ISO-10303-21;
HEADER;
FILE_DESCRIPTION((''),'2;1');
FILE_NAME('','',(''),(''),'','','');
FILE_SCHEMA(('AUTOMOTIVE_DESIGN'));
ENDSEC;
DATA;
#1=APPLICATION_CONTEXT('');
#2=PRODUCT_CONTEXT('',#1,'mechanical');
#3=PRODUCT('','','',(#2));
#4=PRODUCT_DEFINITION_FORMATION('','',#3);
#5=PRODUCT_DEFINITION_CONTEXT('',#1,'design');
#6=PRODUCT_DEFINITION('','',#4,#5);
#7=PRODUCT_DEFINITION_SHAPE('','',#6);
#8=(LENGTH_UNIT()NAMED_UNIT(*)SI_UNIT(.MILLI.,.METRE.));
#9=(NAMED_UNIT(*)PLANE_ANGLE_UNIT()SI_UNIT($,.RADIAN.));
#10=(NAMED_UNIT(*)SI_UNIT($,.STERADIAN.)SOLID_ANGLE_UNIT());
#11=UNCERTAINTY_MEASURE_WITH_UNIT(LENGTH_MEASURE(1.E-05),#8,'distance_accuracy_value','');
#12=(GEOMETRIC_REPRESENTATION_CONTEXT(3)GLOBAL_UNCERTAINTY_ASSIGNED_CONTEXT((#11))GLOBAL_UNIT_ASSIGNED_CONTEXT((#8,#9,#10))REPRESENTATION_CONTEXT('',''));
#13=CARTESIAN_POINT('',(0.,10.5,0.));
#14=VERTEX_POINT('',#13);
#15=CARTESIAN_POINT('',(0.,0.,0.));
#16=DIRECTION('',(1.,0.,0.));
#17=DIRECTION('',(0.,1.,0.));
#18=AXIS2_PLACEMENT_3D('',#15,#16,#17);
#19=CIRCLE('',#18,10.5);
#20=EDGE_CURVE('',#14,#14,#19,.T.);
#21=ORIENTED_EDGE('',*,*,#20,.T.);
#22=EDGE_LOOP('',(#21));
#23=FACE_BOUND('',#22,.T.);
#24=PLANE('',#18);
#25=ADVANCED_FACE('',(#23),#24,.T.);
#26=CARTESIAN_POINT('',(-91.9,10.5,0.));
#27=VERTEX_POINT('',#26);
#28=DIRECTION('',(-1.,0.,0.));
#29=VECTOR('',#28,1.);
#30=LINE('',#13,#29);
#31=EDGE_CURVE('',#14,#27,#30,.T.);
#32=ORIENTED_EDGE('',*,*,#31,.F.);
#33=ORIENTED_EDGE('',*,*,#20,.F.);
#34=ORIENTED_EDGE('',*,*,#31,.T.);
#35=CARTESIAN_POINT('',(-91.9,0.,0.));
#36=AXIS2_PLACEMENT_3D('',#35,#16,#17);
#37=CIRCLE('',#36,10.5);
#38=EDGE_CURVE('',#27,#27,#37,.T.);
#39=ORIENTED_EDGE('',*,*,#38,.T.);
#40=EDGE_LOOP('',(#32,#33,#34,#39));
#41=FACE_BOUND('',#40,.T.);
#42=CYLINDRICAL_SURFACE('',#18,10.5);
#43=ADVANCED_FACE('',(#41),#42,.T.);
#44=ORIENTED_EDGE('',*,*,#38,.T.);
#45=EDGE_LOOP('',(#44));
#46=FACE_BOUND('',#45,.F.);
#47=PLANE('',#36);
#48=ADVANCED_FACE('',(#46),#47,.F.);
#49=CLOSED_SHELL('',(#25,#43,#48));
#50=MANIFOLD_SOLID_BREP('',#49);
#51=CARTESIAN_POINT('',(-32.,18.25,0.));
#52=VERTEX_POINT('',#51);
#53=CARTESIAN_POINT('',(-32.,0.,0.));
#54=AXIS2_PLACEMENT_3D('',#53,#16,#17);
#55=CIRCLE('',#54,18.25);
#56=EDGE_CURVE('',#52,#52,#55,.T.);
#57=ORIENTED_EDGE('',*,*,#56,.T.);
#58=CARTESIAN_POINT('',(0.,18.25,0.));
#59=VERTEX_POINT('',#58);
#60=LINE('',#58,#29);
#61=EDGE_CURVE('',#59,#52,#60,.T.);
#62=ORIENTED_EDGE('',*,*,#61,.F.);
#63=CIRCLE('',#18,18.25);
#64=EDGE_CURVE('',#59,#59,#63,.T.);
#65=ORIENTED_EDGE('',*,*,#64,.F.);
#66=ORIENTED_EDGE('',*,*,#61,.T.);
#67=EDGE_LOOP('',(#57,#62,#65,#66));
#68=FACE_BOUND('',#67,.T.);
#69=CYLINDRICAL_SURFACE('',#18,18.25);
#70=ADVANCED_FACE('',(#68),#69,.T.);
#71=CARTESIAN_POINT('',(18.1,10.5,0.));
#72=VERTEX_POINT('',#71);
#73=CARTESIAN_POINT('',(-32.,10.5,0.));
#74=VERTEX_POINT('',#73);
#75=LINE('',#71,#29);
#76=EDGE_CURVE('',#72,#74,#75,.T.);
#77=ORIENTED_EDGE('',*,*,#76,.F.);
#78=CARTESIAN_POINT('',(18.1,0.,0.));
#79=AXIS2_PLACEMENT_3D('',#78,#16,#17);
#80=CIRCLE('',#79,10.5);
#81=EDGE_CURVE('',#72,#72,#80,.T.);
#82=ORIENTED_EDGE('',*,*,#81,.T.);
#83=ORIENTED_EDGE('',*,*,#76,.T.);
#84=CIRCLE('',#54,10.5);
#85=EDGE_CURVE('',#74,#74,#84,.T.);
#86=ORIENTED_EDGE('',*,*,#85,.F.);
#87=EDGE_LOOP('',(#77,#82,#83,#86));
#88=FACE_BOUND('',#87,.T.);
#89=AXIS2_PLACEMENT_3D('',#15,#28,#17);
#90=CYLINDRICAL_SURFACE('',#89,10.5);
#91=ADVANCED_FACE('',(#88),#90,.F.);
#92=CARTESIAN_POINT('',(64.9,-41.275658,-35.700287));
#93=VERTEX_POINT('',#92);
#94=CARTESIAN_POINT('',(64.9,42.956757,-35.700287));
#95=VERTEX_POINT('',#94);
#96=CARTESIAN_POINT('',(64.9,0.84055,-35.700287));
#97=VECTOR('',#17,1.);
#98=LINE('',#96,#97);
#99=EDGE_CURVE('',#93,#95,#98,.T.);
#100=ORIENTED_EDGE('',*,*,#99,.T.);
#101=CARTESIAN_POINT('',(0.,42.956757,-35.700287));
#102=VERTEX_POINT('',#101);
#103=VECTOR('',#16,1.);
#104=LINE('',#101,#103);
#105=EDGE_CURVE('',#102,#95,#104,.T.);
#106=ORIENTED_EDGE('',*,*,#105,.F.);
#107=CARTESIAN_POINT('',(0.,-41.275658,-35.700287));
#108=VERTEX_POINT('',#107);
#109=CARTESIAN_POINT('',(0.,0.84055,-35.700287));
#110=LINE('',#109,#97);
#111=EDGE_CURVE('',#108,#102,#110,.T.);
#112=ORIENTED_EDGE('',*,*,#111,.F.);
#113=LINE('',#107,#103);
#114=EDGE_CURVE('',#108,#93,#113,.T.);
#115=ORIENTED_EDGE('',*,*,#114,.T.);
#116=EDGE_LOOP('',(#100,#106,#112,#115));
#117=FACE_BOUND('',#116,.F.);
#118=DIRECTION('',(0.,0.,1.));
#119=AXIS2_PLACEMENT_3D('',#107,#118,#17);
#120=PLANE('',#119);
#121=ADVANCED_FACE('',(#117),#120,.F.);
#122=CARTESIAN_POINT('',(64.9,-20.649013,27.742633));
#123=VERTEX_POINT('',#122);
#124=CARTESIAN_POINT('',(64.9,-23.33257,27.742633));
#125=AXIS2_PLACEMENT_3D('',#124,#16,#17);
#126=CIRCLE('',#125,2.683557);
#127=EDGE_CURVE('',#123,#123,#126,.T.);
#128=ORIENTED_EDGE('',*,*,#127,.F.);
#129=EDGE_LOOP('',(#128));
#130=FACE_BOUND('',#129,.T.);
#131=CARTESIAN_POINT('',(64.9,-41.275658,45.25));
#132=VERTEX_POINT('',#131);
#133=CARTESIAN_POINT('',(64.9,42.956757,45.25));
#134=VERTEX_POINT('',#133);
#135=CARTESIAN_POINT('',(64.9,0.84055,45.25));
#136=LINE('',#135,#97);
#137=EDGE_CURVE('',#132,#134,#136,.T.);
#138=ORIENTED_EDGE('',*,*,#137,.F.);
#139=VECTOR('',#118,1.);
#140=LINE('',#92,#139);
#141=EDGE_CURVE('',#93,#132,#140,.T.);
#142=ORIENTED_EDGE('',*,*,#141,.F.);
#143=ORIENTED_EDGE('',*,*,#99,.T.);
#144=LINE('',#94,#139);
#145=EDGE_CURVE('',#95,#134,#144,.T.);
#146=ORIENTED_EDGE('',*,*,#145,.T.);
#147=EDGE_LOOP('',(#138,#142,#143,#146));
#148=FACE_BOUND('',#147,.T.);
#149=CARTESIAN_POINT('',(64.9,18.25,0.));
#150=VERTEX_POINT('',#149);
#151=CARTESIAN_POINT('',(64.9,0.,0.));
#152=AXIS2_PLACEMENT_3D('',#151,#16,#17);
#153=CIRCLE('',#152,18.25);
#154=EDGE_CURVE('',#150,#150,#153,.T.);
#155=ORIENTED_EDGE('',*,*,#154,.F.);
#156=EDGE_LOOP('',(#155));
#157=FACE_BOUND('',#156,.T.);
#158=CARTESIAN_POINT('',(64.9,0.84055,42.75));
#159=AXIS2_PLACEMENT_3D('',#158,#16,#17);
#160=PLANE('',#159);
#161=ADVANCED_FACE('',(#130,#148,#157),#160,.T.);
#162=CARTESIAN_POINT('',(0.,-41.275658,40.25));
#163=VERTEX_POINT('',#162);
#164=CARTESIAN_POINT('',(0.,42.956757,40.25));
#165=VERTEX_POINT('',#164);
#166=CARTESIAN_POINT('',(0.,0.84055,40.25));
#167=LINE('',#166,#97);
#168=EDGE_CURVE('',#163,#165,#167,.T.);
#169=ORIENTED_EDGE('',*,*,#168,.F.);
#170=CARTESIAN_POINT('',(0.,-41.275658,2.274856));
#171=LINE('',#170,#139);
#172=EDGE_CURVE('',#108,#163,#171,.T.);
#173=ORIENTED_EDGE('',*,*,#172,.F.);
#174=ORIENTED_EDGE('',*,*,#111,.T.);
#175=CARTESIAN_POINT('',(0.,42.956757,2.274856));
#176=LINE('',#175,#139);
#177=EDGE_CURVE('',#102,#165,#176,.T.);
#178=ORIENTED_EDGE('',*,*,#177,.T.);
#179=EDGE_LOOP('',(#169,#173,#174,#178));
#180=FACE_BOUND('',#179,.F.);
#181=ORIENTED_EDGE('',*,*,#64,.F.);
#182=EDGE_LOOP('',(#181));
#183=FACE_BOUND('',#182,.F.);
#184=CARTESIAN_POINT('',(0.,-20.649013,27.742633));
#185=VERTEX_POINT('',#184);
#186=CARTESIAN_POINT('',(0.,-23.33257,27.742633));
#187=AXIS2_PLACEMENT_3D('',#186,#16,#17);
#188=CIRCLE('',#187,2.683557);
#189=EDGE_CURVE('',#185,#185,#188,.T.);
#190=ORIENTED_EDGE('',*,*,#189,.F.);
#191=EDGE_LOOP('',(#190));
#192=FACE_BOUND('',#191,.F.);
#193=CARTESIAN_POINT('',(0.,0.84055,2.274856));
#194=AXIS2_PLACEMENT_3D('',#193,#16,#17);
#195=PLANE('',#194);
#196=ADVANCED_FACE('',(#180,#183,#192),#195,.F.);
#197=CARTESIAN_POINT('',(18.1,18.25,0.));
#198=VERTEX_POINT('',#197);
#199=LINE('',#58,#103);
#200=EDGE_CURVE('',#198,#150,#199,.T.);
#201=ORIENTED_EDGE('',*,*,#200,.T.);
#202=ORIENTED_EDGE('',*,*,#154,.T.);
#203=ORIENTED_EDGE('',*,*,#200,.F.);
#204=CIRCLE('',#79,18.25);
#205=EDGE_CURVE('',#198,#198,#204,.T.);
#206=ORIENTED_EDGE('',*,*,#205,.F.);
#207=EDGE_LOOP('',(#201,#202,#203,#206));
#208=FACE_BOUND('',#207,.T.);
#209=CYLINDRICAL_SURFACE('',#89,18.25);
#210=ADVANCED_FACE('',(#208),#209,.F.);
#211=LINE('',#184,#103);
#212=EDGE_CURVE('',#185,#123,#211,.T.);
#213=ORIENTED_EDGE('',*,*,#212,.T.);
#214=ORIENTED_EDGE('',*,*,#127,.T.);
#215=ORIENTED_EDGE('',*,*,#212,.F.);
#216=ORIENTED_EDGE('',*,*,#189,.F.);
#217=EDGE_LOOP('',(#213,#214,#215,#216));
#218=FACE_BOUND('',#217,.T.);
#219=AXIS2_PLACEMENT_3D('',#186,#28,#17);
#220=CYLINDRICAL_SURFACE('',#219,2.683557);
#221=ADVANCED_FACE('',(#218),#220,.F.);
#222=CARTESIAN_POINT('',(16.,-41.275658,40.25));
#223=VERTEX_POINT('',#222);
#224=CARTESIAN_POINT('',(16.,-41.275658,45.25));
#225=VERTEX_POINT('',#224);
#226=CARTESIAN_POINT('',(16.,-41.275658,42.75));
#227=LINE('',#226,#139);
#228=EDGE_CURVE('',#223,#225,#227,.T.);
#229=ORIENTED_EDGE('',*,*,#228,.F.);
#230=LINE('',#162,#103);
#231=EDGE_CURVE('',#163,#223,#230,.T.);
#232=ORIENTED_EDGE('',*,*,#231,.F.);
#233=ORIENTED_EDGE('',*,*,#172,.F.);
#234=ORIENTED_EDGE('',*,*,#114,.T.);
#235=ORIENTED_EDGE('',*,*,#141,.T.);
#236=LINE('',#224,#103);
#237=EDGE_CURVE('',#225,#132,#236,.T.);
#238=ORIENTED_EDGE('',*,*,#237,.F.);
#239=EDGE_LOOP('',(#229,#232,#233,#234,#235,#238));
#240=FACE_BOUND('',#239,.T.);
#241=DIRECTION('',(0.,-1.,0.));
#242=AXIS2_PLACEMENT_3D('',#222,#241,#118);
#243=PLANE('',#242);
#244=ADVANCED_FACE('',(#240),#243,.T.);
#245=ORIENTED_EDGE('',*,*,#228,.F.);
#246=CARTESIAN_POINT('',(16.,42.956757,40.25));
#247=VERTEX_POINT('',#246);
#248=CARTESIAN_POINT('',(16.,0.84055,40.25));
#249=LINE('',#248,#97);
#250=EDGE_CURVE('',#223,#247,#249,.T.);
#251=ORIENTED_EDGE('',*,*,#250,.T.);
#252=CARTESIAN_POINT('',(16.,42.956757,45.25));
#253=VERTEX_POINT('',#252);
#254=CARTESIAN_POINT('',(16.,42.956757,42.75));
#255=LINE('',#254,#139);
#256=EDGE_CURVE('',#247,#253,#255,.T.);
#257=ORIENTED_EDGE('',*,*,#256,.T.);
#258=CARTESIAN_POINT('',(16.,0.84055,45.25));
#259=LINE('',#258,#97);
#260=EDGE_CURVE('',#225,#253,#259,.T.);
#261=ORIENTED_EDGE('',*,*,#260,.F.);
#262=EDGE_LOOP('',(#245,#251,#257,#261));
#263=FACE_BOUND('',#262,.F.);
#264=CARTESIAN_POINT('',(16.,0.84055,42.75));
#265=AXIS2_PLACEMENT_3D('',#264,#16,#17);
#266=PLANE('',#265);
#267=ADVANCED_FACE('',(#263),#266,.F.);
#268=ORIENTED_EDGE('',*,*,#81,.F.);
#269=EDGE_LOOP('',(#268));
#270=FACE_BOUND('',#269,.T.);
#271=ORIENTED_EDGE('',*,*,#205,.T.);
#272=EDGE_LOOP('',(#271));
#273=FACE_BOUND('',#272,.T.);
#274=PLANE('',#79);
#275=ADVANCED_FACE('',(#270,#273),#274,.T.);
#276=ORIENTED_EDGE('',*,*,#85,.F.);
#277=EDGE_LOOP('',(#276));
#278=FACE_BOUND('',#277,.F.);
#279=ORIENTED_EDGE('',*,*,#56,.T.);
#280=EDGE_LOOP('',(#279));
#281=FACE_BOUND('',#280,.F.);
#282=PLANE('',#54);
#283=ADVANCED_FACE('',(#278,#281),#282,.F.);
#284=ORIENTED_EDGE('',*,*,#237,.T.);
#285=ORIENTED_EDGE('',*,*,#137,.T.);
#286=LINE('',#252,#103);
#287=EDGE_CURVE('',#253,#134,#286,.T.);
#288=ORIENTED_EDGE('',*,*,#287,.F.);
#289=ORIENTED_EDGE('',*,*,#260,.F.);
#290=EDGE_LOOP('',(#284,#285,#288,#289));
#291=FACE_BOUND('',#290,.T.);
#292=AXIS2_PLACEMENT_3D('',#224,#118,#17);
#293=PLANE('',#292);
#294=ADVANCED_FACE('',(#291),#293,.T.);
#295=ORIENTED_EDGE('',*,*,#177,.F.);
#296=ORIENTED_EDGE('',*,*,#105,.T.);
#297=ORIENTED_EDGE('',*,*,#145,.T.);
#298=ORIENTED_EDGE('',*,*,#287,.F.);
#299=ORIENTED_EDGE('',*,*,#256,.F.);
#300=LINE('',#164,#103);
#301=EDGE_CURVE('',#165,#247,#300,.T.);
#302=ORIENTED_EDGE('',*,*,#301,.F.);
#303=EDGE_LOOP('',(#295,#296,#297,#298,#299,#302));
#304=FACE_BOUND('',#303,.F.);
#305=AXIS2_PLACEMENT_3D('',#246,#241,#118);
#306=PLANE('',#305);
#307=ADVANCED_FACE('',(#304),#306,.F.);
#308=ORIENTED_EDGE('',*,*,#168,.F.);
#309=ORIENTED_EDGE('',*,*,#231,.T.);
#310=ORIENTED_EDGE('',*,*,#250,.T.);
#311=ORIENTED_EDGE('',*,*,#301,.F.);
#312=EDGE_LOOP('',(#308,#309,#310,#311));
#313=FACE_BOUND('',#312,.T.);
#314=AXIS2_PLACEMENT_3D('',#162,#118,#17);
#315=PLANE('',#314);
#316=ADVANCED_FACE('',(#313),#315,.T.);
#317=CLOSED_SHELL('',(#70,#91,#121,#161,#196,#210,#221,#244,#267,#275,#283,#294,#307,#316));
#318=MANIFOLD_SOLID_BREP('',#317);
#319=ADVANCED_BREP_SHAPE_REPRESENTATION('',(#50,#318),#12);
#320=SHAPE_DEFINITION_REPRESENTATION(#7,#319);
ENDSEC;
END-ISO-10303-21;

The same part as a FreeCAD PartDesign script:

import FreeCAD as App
import Part
import Sketcher
from FreeCAD import Vector
Q = App.Units.Quantity


def add_polygon(sketch, points):
    """Adds a closed chain of lines whose ends are joined by coincident constraints."""
    first, n = sketch.GeometryCount, len(points)
    for a, b in zip(points, points[1:] + points[:1]):
        sketch.addGeometry(Part.LineSegment(App.Vector(*a, 0), App.Vector(*b, 0)), False)
    for i in range(n):
        sketch.addConstraint(Sketcher.Constraint("Coincident", first + i, 2, first + (i + 1) % n, 1))

doc = App.newDocument("Part")
body = doc.addObject("PartDesign::Body", "Body")

# Sketch on YZ plane
sketch1 = body.newObject("Sketcher::SketchObject", "Sketch")
sketch1.AttachmentSupport = (doc.getObject("YZ_Plane"), [""])
sketch1.MapMode = "FlatFace"
add_polygon(sketch1, [(-41.275658, 40.25), (-41.275658, -35.700287), (42.956757, -35.700287), (42.956757, 40.25)])  # lines 0-3
sketch1.addGeometry(Part.Circle(Vector(0, 0, 0), Vector(0, 0, 1), 18.25), False)  # 4
sketch1.addGeometry(Part.Circle(Vector(-23.33257, 27.742633, 0), Vector(0, 0, 1), 2.683557), False)  # 5
sketch1.addConstraint(Sketcher.Constraint("Vertical", 0))
sketch1.addConstraint(Sketcher.Constraint("Horizontal", 1))
sketch1.addConstraint(Sketcher.Constraint("Vertical", 2))
sketch1.addConstraint(Sketcher.Constraint("Horizontal", 3))
sketch1.addConstraint(Sketcher.Constraint("Coincident", 4, 3, -1, 1))
sketch1.addConstraint(Sketcher.Constraint("Diameter", 4, Q("36.5 mm")))
sketch1.addConstraint(Sketcher.Constraint("DistanceY", -1, 1, 2, 2, Q("40.25 mm")))
sketch1.addConstraint(Sketcher.Constraint("Diameter", 5, Q("5.367113 mm")))
sketch1.addConstraint(Sketcher.Constraint("DistanceX", 1, 1, 1, 2, Q("84.232415 mm")))
sketch1.addConstraint(Sketcher.Constraint("DistanceY", 0, 2, 0, 1, Q("75.950287 mm")))
sketch1.addConstraint(Sketcher.Constraint("DistanceX", 5, 3, -1, 1, Q("23.33257 mm")))
sketch1.addConstraint(Sketcher.Constraint("DistanceX", 0, 2, 5, 3, Q("17.943088 mm")))
sketch1.addConstraint(Sketcher.Constraint("DistanceY", 0, 2, 5, 3, Q("63.442921 mm")))
pad1 = body.newObject("PartDesign::Pad", "Pad")
pad1.Profile = sketch1
pad1.Length = 64.9

# Sketch on YZ plane
sketch2 = body.newObject("Sketcher::SketchObject", "Sketch001")
sketch2.AttachmentSupport = (doc.getObject("YZ_Plane"), [""])
sketch2.MapMode = "FlatFace"
sketch2.AttachmentOffset = App.Placement(Vector(0, 0, 16), App.Rotation())
add_polygon(sketch2, [(-41.275658, 45.25), (-41.275658, 40.25), (42.956757, 40.25), (42.956757, 45.25)])  # lines 0-3
sketch2.addConstraint(Sketcher.Constraint("Vertical", 0))
sketch2.addConstraint(Sketcher.Constraint("Horizontal", 1))
sketch2.addConstraint(Sketcher.Constraint("Vertical", 2))
sketch2.addConstraint(Sketcher.Constraint("Horizontal", 3))
sketch2.addConstraint(Sketcher.Constraint("DistanceY", 0, 2, 0, 1, Q("5 mm")))
sketch2.addConstraint(Sketcher.Constraint("DistanceY", -1, 1, 0, 2, Q("40.25 mm")))
sketch2.addConstraint(Sketcher.Constraint("DistanceX", 1, 1, 1, 2, Q("84.232415 mm")))
sketch2.addConstraint(Sketcher.Constraint("DistanceX", 0, 2, -1, 1, Q("41.275658 mm")))
pad2 = body.newObject("PartDesign::Pad", "Pad001")
pad2.Profile = sketch2
pad2.Length = 48.9

# Sketch on YZ plane
sketch3 = body.newObject("Sketcher::SketchObject", "Sketch002")
sketch3.AttachmentSupport = (doc.getObject("YZ_Plane"), [""])
sketch3.MapMode = "FlatFace"
sketch3.addGeometry(Part.Circle(Vector(0, 0, 0), Vector(0, 0, 1), 18.25), False)
sketch3.addGeometry(Part.Circle(Vector(0, 0, 0), Vector(0, 0, 1), 10.5), False)
sketch3.addConstraint(Sketcher.Constraint("Coincident", 0, 3, -1, 1))
sketch3.addConstraint(Sketcher.Constraint("Coincident", 1, 3, -1, 1))
sketch3.addConstraint(Sketcher.Constraint("Diameter", 1, Q("21 mm")))
sketch3.addConstraint(Sketcher.Constraint("Diameter", 0, Q("36.5 mm")))
pad3 = body.newObject("PartDesign::Pad", "Pad002")
pad3.Profile = sketch3
pad3.Type = "TwoLengths"
pad3.Length = 32
pad3.Length2 = 18.1
pad3.Reversed = True
body2 = doc.addObject("PartDesign::Body", "Body001")

# Sketch on YZ plane
sketch4 = body2.newObject("Sketcher::SketchObject", "Sketch003")
sketch4.AttachmentSupport = (doc.getObject("YZ_Plane001"), [""])
sketch4.MapMode = "FlatFace"
sketch4.addGeometry(Part.Circle(Vector(0, 0, 0), Vector(0, 0, 1), 10.5), False)
sketch4.addConstraint(Sketcher.Constraint("Coincident", 0, 3, -1, 1))
sketch4.addConstraint(Sketcher.Constraint("Diameter", 0, Q("21 mm")))
pad4 = body2.newObject("PartDesign::Pad", "Pad003")
pad4.Profile = sketch4
pad4.Length = 91.9
pad4.Reversed = True

doc.recompute()
